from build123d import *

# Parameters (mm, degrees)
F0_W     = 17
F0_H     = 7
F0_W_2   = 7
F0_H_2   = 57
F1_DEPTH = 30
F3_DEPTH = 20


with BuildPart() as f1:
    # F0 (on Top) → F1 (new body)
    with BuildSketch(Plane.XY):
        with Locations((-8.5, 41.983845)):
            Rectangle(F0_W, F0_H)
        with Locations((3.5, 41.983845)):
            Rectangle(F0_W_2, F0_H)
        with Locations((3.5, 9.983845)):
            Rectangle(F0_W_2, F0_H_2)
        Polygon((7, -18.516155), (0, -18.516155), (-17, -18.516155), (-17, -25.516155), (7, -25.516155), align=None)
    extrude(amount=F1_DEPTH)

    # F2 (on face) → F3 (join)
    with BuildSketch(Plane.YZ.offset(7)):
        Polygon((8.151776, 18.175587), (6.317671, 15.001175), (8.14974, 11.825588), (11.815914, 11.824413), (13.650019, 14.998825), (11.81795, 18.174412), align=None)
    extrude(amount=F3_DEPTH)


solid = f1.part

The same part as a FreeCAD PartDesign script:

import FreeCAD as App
import Part
import Sketcher
from FreeCAD import Vector
Q = App.Units.Quantity


def add_polygon(sketch, points):
    """Adds a closed chain of lines whose ends are joined by coincident constraints."""
    first, n = sketch.GeometryCount, len(points)
    for a, b in zip(points, points[1:] + points[:1]):
        sketch.addGeometry(Part.LineSegment(App.Vector(*a, 0), App.Vector(*b, 0)), False)
    for i in range(n):
        sketch.addConstraint(Sketcher.Constraint("Coincident", first + i, 2, first + (i + 1) % n, 1))

doc = App.newDocument("Part")
body = doc.addObject("PartDesign::Body", "Body")

sketch1 = doc.addObject("Sketcher::SketchObject", "Sketch")
body.addObject(sketch1)
sketch1.AttachmentSupport = (doc.XY_Plane, [""])
sketch1.MapMode = "FlatFace"
add_polygon(sketch1, [(-17, 45.483845), (-17, 38.483845), (0, 38.483845), (0, -18.516155), (-17, -18.516155), (-17, -25.516155), (7, -25.516155), (7, 45.483845)])
sketch1.addConstraint([
    Sketcher.Constraint("Vertical", 0),
    Sketcher.Constraint("Horizontal", 1),
    Sketcher.Constraint("Vertical", 2),
    Sketcher.Constraint("Horizontal", 3),
    Sketcher.Constraint("Vertical", 4),
    Sketcher.Constraint("Horizontal", 5),
    Sketcher.Constraint("Vertical", 6),
    Sketcher.Constraint("Horizontal", 7),
    Sketcher.Constraint("PointOnObject", 1, 2, -2),
    Sketcher.Constraint("Vertical", 0, 2, 3, 2),
    Sketcher.Constraint("Equal", 0, 4),
    Sketcher.Constraint("DistanceX", 1, 1, 1, 2, Q("17 mm")),
    Sketcher.Constraint("DistanceX", 5, 1, 5, 2, Q("24 mm")),
    Sketcher.Constraint("DistanceY", 0, 2, 0, 1, Q("7 mm")),
    Sketcher.Constraint("DistanceY", 2, 2, 2, 1, Q("57 mm")),
    Sketcher.Constraint("DistanceY", -1, 1, 0, 2, Q("38.483845 mm")),
])
pad1 = doc.addObject("PartDesign::Pad", "Pad")
body.addObject(pad1)
pad1.Profile = sketch1
pad1.Length = 30

sketch2 = doc.addObject("Sketcher::SketchObject", "Sketch001")
body.addObject(sketch2)
sketch2.AttachmentSupport = (doc.YZ_Plane, [""])
sketch2.MapMode = "FlatFace"
sketch2.AttachmentOffset = App.Placement(Vector(0, 0, 7), App.Rotation())
add_polygon(sketch2, [(8.151776, 18.175587), (6.317671, 15.001175), (8.14974, 11.825588), (11.815914, 11.824413), (13.650019, 14.998825), (11.81795, 18.174412)])
sketch2.addConstraint([
    Sketcher.Constraint("Parallel", 0, 3),
    Sketcher.Constraint("Parallel", 1, 4),
    Sketcher.Constraint("Parallel", 2, 5),
    Sketcher.Constraint("Equal", 0, 1),
    Sketcher.Constraint("Equal", 1, 2),
    Sketcher.Constraint("Equal", 2, 3),
    Sketcher.Constraint("DistanceY", 2, 2, 4, 2, Q("6.349999 mm")),
    Sketcher.Constraint("DistanceX", -1, 1, 0, 2, Q("6.317671 mm")),
    Sketcher.Constraint("DistanceX", -1, 1, 1, 2, Q("8.14974 mm")),
    Sketcher.Constraint("DistanceX", -1, 1, 3, 2, Q("13.650019 mm")),
    Sketcher.Constraint("DistanceY", -1, 1, 4, 2, Q("18.174412 mm")),
    Sketcher.Constraint("DistanceY", 3, 2, 0, 2, Q("0.00235 mm")),
])
pad2 = doc.addObject("PartDesign::Pad", "Pad001")
body.addObject(pad2)
pad2.Profile = sketch2
pad2.Length = 20

doc.recompute()
